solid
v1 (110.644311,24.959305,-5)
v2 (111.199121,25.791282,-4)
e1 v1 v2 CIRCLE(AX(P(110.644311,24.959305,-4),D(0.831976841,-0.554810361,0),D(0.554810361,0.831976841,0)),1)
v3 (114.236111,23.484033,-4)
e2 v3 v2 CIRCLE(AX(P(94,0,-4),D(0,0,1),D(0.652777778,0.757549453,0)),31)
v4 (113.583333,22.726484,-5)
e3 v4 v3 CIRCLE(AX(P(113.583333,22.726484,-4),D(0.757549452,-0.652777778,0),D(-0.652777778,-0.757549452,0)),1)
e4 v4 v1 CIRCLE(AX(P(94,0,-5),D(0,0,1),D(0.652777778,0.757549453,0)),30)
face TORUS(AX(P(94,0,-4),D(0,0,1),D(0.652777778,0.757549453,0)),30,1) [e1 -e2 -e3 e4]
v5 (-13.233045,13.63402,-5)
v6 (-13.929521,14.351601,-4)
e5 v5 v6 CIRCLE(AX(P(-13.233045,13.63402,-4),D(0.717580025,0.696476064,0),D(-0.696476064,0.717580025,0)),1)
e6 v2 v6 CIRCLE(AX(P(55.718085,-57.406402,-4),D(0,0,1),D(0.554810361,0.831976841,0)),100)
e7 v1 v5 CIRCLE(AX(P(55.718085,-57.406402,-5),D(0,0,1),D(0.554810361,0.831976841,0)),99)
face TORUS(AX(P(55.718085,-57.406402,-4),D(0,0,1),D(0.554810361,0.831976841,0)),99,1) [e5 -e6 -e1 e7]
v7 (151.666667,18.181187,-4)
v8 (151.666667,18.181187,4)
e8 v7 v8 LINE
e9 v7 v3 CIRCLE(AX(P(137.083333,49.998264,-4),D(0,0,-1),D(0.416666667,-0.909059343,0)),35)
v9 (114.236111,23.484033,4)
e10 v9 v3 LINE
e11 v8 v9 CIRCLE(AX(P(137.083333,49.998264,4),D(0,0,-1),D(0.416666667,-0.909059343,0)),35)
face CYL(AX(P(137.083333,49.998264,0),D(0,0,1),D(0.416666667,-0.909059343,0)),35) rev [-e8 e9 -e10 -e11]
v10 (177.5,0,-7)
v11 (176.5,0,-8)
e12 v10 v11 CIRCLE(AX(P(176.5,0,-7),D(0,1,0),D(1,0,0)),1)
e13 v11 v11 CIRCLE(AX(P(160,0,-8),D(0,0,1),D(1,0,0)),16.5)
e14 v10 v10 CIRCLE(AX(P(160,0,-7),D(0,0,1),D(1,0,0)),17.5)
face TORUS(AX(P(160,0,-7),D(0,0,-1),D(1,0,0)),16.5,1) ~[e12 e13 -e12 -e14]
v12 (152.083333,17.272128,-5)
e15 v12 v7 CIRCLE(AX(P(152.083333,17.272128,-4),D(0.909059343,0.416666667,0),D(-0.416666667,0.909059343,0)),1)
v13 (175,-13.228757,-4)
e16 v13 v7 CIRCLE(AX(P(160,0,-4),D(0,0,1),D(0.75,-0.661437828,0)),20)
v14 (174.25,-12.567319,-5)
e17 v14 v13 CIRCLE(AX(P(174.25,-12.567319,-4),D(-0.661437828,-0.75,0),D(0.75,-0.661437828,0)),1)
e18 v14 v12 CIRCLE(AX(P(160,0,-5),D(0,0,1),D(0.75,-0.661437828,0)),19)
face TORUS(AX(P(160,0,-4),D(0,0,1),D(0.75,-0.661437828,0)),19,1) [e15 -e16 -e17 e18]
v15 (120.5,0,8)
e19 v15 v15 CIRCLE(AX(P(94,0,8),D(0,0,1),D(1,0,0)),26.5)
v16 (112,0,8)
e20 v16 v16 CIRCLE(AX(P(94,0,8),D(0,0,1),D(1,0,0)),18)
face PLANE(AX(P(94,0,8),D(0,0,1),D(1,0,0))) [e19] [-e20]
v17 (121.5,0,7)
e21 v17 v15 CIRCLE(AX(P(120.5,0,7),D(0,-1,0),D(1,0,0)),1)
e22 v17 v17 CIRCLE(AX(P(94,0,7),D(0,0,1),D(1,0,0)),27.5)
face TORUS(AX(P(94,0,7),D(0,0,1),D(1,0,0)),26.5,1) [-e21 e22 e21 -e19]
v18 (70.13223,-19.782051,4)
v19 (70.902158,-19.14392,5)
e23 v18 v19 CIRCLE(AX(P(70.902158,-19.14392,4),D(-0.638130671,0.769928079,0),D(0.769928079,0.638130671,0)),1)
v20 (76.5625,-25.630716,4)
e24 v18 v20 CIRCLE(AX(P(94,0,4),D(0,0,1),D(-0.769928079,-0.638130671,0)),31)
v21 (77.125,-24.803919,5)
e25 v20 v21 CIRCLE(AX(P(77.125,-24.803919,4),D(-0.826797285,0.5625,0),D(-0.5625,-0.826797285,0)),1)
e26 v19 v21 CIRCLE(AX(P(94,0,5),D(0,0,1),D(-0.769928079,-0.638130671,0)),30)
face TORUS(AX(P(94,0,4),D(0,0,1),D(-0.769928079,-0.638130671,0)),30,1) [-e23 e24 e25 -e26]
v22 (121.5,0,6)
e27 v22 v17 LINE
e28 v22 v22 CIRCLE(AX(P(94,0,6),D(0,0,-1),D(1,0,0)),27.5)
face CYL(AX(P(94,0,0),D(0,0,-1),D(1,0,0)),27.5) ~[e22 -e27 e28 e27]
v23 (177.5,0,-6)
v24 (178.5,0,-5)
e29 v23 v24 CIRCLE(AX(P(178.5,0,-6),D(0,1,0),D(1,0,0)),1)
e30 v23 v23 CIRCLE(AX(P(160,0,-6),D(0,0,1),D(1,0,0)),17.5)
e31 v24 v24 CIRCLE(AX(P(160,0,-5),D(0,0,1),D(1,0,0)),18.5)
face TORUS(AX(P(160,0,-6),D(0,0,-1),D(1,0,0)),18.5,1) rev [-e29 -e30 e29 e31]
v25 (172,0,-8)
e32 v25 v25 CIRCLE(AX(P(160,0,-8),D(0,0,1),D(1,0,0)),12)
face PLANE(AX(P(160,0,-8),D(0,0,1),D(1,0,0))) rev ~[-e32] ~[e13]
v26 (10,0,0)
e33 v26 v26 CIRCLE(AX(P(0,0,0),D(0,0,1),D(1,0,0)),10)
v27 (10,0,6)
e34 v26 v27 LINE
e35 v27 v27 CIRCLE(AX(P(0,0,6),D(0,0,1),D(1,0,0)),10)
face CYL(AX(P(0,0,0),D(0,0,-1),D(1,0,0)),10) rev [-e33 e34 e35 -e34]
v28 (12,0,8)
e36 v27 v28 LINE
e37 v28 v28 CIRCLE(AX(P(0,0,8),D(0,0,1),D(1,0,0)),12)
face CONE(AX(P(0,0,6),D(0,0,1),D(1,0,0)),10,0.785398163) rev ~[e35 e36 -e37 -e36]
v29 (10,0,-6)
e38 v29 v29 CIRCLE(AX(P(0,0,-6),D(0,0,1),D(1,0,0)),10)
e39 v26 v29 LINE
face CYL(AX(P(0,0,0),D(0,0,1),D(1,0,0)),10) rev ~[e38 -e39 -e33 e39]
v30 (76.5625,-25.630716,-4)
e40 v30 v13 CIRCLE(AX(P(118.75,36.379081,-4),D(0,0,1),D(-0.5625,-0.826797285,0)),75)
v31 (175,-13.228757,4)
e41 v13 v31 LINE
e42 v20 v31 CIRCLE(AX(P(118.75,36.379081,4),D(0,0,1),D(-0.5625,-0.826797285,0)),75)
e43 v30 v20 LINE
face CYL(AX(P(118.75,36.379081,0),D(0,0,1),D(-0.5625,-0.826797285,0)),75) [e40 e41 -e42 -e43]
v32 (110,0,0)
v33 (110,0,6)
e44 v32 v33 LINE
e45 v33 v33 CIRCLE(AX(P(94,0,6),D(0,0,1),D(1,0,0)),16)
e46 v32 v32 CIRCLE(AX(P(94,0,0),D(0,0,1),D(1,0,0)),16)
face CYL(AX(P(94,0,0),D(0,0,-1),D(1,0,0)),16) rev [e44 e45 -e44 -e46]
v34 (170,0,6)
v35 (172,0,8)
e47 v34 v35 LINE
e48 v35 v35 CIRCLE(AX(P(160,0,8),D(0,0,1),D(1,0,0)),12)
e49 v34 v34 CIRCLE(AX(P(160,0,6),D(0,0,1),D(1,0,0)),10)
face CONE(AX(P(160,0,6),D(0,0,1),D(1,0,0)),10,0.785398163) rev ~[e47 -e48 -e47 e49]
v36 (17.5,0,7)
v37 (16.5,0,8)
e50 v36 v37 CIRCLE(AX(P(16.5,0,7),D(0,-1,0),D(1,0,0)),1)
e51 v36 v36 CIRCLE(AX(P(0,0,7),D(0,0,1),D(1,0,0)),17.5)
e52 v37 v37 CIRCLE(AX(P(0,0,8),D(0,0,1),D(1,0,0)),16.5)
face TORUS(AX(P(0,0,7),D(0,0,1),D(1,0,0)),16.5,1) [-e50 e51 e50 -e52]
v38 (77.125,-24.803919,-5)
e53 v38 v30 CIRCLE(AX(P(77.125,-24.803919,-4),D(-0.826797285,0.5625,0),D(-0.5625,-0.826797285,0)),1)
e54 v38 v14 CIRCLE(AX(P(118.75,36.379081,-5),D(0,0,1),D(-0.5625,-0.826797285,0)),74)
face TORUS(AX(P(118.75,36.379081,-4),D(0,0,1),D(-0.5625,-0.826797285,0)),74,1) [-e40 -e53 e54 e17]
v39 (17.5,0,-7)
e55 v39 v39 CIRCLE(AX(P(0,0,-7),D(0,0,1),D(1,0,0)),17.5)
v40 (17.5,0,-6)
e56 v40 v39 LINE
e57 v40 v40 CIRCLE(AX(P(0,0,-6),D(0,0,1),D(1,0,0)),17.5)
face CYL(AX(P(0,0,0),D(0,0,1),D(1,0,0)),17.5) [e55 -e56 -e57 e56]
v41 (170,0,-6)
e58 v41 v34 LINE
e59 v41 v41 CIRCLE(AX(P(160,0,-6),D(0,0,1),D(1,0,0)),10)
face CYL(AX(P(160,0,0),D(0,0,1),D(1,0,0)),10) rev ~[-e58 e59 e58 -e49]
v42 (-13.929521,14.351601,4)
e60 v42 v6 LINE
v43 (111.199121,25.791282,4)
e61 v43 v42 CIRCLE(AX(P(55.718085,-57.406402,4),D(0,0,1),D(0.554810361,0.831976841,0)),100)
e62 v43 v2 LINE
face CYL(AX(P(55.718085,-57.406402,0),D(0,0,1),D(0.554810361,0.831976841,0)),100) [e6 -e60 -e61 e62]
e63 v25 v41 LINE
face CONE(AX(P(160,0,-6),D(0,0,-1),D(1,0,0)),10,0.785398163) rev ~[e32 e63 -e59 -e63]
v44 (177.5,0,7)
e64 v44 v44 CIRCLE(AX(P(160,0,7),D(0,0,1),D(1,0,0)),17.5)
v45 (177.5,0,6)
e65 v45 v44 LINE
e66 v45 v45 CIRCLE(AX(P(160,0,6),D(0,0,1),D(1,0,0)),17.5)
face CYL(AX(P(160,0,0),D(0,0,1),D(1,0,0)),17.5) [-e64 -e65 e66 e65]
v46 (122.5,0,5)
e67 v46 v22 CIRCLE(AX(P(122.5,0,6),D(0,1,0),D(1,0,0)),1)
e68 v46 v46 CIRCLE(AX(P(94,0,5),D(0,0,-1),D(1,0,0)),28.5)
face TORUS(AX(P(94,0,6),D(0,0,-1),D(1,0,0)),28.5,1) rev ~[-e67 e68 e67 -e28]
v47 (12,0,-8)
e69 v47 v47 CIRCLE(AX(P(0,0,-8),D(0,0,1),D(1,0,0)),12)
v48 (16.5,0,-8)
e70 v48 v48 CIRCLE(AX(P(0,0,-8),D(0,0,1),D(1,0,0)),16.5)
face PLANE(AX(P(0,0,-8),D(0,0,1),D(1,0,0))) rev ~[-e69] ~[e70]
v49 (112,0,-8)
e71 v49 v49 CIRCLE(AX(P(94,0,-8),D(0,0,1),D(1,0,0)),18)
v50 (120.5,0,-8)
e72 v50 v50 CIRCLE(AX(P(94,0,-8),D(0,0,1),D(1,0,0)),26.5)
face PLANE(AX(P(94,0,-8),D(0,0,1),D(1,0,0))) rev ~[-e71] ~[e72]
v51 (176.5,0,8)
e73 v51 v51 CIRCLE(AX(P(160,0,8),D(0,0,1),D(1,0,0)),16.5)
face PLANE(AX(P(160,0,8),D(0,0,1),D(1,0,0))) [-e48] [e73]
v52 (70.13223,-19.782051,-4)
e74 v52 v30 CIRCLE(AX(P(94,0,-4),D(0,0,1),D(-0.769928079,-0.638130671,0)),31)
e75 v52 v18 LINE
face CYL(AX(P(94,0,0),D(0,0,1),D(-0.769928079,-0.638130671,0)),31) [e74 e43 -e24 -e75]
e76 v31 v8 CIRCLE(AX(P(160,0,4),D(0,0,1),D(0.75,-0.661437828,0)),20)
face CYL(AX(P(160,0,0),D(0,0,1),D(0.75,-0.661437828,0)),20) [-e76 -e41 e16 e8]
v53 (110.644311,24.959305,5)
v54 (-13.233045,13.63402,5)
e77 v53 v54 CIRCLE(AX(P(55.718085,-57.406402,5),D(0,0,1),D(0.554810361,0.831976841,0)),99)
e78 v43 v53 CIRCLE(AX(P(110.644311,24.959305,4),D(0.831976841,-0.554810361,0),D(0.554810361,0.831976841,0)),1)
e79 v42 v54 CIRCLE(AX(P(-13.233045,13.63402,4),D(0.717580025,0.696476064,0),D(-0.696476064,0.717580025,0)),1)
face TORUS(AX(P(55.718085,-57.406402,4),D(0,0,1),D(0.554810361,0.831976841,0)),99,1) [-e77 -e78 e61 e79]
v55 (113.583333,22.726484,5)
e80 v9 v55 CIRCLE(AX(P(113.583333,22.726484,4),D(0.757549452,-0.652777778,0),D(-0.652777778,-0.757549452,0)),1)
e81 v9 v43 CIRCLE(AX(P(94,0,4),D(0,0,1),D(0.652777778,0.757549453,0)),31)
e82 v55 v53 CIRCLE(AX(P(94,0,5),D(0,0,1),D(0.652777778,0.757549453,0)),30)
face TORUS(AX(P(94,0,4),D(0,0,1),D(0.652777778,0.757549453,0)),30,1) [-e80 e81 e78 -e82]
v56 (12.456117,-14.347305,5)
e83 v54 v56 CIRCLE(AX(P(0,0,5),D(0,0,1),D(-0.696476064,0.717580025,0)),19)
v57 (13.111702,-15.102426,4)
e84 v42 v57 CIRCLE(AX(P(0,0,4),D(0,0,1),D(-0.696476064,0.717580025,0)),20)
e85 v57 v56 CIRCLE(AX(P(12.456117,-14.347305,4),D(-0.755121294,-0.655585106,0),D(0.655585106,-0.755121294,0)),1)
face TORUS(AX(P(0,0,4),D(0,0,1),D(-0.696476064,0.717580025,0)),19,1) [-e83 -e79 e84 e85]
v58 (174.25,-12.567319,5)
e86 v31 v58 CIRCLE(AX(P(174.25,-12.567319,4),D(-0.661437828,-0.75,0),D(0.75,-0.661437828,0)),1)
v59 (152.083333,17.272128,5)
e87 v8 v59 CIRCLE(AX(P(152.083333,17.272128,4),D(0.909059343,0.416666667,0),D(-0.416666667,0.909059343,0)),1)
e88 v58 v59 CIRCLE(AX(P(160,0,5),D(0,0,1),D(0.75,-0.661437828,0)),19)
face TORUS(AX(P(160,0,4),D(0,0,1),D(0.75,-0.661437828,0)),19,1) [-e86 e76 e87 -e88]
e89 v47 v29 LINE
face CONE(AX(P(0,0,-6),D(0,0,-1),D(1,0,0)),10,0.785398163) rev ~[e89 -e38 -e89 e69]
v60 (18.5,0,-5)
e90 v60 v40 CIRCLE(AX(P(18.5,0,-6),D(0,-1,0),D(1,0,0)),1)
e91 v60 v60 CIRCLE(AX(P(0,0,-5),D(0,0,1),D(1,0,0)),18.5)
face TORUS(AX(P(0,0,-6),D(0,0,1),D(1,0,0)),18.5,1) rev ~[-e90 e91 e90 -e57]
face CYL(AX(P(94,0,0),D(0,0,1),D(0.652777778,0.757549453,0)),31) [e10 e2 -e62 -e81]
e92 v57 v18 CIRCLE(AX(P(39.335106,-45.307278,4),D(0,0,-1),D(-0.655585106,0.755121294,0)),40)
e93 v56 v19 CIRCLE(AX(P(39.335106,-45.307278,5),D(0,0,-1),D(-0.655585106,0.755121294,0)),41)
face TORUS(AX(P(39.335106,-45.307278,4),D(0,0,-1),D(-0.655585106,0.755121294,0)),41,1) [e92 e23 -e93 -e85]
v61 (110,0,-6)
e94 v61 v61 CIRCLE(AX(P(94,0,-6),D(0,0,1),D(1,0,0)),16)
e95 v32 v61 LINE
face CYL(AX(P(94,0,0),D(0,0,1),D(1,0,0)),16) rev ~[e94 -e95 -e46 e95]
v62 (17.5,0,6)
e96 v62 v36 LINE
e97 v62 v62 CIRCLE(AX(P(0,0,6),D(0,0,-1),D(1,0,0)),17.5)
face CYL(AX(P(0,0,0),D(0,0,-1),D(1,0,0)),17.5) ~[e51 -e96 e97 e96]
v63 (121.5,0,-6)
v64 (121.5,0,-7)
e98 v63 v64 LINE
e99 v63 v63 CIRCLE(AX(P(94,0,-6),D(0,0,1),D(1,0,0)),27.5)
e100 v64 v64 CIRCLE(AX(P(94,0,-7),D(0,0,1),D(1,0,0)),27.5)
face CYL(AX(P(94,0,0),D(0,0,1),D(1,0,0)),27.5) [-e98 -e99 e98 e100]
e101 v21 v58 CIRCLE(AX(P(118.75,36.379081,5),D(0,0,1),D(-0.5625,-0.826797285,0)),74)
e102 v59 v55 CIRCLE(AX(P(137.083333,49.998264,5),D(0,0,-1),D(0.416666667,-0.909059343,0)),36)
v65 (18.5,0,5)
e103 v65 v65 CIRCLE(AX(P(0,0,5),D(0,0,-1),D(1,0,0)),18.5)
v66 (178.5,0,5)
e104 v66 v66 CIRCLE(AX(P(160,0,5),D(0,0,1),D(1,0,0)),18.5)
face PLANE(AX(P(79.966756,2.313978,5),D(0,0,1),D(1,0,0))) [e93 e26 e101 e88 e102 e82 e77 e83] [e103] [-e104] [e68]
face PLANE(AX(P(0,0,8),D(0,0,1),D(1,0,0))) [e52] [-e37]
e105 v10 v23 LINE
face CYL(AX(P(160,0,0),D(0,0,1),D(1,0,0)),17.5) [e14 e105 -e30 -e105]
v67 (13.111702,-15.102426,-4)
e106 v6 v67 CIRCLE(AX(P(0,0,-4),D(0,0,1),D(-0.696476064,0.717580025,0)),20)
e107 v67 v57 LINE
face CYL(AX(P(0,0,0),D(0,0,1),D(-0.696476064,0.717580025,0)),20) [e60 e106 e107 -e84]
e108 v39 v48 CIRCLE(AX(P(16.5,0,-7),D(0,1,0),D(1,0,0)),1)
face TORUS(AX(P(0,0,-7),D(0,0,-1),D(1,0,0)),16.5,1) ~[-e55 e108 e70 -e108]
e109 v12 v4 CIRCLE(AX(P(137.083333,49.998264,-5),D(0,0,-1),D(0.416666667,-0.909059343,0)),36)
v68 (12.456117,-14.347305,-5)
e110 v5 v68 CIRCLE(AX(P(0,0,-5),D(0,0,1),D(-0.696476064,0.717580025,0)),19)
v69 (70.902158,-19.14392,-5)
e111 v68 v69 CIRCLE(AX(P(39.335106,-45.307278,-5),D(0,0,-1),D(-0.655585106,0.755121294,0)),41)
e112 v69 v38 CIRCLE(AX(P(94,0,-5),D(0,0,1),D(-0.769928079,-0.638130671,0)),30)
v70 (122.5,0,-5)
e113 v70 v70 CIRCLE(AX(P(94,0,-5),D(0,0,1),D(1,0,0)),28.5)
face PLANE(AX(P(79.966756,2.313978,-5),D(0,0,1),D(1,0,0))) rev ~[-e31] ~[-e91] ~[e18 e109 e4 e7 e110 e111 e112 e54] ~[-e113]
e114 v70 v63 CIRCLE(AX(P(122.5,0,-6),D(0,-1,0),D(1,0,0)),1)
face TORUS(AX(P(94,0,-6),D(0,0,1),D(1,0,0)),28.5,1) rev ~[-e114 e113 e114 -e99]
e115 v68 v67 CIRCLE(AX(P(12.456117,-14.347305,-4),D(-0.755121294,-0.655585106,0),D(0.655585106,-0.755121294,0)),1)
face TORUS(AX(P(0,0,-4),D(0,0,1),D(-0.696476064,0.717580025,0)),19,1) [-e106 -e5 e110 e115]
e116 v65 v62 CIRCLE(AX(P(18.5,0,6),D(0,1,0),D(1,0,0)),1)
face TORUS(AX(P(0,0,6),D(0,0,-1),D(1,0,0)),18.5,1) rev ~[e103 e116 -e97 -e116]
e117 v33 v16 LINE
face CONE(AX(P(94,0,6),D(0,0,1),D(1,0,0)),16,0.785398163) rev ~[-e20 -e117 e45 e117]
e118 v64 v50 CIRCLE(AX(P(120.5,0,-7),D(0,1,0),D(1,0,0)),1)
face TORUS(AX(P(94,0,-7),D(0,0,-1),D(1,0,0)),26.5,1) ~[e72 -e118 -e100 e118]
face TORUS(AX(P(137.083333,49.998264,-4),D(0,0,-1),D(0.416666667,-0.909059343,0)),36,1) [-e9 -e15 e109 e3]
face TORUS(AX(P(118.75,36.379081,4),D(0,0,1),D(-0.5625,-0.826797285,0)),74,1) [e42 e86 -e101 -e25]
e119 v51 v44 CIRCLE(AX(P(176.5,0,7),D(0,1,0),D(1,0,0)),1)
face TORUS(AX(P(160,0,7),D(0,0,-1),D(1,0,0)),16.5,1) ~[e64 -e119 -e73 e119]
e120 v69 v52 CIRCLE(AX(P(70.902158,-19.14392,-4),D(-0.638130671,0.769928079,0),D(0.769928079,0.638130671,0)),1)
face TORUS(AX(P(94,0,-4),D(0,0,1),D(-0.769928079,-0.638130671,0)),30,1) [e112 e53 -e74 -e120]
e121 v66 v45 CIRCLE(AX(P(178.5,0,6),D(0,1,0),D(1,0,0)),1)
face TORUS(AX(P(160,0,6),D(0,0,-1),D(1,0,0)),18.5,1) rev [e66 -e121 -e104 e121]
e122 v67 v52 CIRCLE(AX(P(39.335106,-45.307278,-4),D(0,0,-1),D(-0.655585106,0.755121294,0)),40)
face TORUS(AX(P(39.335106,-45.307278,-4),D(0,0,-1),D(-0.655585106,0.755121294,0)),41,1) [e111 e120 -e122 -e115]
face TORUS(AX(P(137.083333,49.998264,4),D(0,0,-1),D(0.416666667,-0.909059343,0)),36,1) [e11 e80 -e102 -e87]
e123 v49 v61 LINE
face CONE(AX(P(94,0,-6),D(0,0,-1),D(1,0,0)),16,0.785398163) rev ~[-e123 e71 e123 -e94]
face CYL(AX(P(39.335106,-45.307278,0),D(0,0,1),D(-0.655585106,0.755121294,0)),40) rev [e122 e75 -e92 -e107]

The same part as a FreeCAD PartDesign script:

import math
import FreeCAD as App
import Part
import Sketcher

V = App.Vector
Q = App.Units.Quantity


def edges_at(feature, points):
    """Names of the edges that pass closest to the given points."""
    edges = feature.Shape.Edges
    near = lambda p: min(range(len(edges)), key=lambda i: edges[i].distToShape(Part.Vertex(*p))[0])
    return sorted({f"Edge{near(p) + 1}" for p in points})

doc = App.newDocument("Part")
body = doc.addObject("PartDesign::Body", "Body")

# Sketch on XY plane
sketch1 = body.newObject("Sketcher::SketchObject", "Sketch")
sketch1.AttachmentSupport = (doc.getObject("XY_Plane"), [""])
sketch1.MapMode = "FlatFace"
sketch1.addGeometry([
    Part.ArcOfCircle(Part.Circle(V(0, 0, 0), V(0, 0, 1), 20), math.radians(134.144957), math.radians(310.964031)),  # 0
    Part.ArcOfCircle(Part.Circle(V(39.335106, -45.307278, 0), V(0, 0, 1), 40), math.radians(39.652569), math.radians(130.964031)),  # 1
    Part.ArcOfCircle(Part.Circle(V(94, 0, 0), V(0, 0, 1), 31), math.radians(-140.347431), math.radians(-124.228866)),  # 2
    Part.ArcOfCircle(Part.Circle(V(118.75, 36.379081, 0), V(0, 0, 1), 75), math.radians(-124.228866), math.radians(-41.409622)),  # 3
    Part.ArcOfCircle(Part.Circle(V(160, 0, 0), V(0, 0, 1), 20), math.radians(-41.409622), math.radians(114.624318)),  # 4
    Part.ArcOfCircle(Part.Circle(V(137.083333, 49.998264, 0), V(0, 0, 1), 35), math.radians(-130.751363), math.radians(-65.375682)),  # 5
    Part.ArcOfCircle(Part.Circle(V(94, 0, 0), V(0, 0, 1), 31), math.radians(49.248637), math.radians(56.302346)),  # 6
    Part.ArcOfCircle(Part.Circle(V(55.718085, -57.406402, 0), V(0, 0, 1), 100), math.radians(56.302346), math.radians(134.144957)),  # 7
], False)
sketch1.addConstraint([
    Sketcher.Constraint("Tangent", 0, 2, 1, 2),
    Sketcher.Constraint("Tangent", 1, 1, 2, 1),
    Sketcher.Constraint("Tangent", 2, 2, 3, 1),
    Sketcher.Constraint("Tangent", 3, 2, 4, 1),
    Sketcher.Constraint("Tangent", 4, 2, 5, 2),
    Sketcher.Constraint("Tangent", 5, 1, 6, 1),
    Sketcher.Constraint("Tangent", 6, 2, 7, 1),
    Sketcher.Constraint("Tangent", 7, 2, 0, 1),
    Sketcher.Constraint("Coincident", 0, 3, -1, 1),
    Sketcher.Constraint("Coincident", 6, 3, 2, 3),
    Sketcher.Constraint("Equal", 0, 4),
    Sketcher.Constraint("Equal", 2, 6),
    Sketcher.Constraint("PointOnObject", 2, 3, -1),
    Sketcher.Constraint("PointOnObject", 4, 3, -1),
    Sketcher.Constraint("Radius", 0, Q("20 mm")),
    Sketcher.Constraint("Radius", 1, Q("40 mm")),
    Sketcher.Constraint("Radius", 2, Q("31 mm")),
    Sketcher.Constraint("Radius", 3, Q("75 mm")),
    Sketcher.Constraint("Radius", 5, Q("35 mm")),
    Sketcher.Constraint("Radius", 7, Q("100 mm")),
    Sketcher.Constraint("DistanceX", -1, 1, 2, 3, Q("94 mm")),
    Sketcher.Constraint("DistanceX", -1, 1, 4, 3, Q("160 mm")),
])
pad1 = body.newObject("PartDesign::Pad", "Pad")
pad1.Profile = sketch1
pad1.Length = 10
pad1.Midplane = True

# Sketch on XY plane
sketch2 = body.newObject("Sketcher::SketchObject", "Sketch001")
sketch2.AttachmentSupport = (doc.getObject("XY_Plane"), [""])
sketch2.MapMode = "FlatFace"
sketch2.addGeometry([
    Part.Circle(V(0, 0, 0), V(0, 0, 1), 17.5),
    Part.Circle(V(94, 0, 0), V(0, 0, 1), 27.5),
    Part.Circle(V(160, 0, 0), V(0, 0, 1), 17.5),
], False)
sketch2.addConstraint([
    Sketcher.Constraint("Coincident", 0, 3, -1, 1),
    Sketcher.Constraint("Equal", 0, 2),
    Sketcher.Constraint("PointOnObject", 1, 3, -1),
    Sketcher.Constraint("PointOnObject", 2, 3, -1),
    Sketcher.Constraint("Diameter", 0, Q("35 mm")),
    Sketcher.Constraint("Diameter", 1, Q("55 mm")),
    Sketcher.Constraint("DistanceX", -1, 1, 1, 3, Q("94 mm")),
    Sketcher.Constraint("DistanceX", -1, 1, 2, 3, Q("160 mm")),
])
pad2 = body.newObject("PartDesign::Pad", "Pad001")
pad2.Profile = sketch2
pad2.Length = 16
pad2.Midplane = True

# Sketch on XY plane
sketch3 = body.newObject("Sketcher::SketchObject", "Sketch002")
sketch3.AttachmentSupport = (doc.getObject("XY_Plane"), [""])
sketch3.MapMode = "FlatFace"
sketch3.addGeometry([
    Part.Circle(V(0, 0, 0), V(0, 0, 1), 10),
    Part.Circle(V(94, 0, 0), V(0, 0, 1), 16),
    Part.Circle(V(160, 0, 0), V(0, 0, 1), 10),
], False)
sketch3.addConstraint([
    Sketcher.Constraint("Coincident", 0, 3, -1, 1),
    Sketcher.Constraint("Equal", 0, 2),
    Sketcher.Constraint("PointOnObject", 1, 3, -1),
    Sketcher.Constraint("PointOnObject", 2, 3, -1),
    Sketcher.Constraint("Diameter", 0, Q("20 mm")),
    Sketcher.Constraint("Diameter", 1, Q("32 mm")),
    Sketcher.Constraint("DistanceX", -1, 1, 1, 3, Q("94 mm")),
    Sketcher.Constraint("DistanceX", -1, 1, 2, 3, Q("160 mm")),
])
pocket1 = body.newObject("PartDesign::Pocket", "Pocket")
pocket1.Profile = sketch3
pocket1.Length = 16
pocket1.Midplane = True
doc.recompute()

fillet = body.newObject("PartDesign::Fillet", "Fillet")
fillet.Base = (pocket1, edges_at(pocket1, [
    (-14.733, -13.526, -5),
    (46.614, 42.178, -5),
    (112.753, 24.684, -5),
    (132.174, 15.344, -5),
    (46.614, 42.178, 5),
    (-14.733, -13.526, 5),
    (42.607, -5.441, 5),
    (73.141, -22.933, 5),
    (-17.5, 0, -5),
    (-17.5, 0, 5),
    (-17.5, 0, -8),
    (-17.5, 0, 8),
    (128.125, -38.033, 5),
    (66.5, 0, -5),
    (66.5, 0, 5),
    (66.5, 0, -8),
    (66.5, 0, 8),
    (176.055, 11.927, 5),
    (142.5, 0, -5),
    (142.5, 0, 5),
    (142.5, 0, -8),
    (142.5, 0, 8),
    (132.174, 15.344, 5),
    (176.055, 11.927, -5),
    (112.753, 24.684, 5),
    (128.125, -38.033, -5),
    (73.141, -22.933, -5),
    (42.607, -5.441, -5),
]))
fillet.Radius = 1
doc.recompute()

chamfer = body.newObject("PartDesign::Chamfer", "Chamfer")
chamfer.Base = (fillet, edges_at(fillet, [
    (-10, 0, -8),
    (-10, 0, 8),
    (78, 0, -8),
    (78, 0, 8),
    (150, 0, -8),
    (150, 0, 8),
]))
chamfer.Size = 2

doc.recompute()
